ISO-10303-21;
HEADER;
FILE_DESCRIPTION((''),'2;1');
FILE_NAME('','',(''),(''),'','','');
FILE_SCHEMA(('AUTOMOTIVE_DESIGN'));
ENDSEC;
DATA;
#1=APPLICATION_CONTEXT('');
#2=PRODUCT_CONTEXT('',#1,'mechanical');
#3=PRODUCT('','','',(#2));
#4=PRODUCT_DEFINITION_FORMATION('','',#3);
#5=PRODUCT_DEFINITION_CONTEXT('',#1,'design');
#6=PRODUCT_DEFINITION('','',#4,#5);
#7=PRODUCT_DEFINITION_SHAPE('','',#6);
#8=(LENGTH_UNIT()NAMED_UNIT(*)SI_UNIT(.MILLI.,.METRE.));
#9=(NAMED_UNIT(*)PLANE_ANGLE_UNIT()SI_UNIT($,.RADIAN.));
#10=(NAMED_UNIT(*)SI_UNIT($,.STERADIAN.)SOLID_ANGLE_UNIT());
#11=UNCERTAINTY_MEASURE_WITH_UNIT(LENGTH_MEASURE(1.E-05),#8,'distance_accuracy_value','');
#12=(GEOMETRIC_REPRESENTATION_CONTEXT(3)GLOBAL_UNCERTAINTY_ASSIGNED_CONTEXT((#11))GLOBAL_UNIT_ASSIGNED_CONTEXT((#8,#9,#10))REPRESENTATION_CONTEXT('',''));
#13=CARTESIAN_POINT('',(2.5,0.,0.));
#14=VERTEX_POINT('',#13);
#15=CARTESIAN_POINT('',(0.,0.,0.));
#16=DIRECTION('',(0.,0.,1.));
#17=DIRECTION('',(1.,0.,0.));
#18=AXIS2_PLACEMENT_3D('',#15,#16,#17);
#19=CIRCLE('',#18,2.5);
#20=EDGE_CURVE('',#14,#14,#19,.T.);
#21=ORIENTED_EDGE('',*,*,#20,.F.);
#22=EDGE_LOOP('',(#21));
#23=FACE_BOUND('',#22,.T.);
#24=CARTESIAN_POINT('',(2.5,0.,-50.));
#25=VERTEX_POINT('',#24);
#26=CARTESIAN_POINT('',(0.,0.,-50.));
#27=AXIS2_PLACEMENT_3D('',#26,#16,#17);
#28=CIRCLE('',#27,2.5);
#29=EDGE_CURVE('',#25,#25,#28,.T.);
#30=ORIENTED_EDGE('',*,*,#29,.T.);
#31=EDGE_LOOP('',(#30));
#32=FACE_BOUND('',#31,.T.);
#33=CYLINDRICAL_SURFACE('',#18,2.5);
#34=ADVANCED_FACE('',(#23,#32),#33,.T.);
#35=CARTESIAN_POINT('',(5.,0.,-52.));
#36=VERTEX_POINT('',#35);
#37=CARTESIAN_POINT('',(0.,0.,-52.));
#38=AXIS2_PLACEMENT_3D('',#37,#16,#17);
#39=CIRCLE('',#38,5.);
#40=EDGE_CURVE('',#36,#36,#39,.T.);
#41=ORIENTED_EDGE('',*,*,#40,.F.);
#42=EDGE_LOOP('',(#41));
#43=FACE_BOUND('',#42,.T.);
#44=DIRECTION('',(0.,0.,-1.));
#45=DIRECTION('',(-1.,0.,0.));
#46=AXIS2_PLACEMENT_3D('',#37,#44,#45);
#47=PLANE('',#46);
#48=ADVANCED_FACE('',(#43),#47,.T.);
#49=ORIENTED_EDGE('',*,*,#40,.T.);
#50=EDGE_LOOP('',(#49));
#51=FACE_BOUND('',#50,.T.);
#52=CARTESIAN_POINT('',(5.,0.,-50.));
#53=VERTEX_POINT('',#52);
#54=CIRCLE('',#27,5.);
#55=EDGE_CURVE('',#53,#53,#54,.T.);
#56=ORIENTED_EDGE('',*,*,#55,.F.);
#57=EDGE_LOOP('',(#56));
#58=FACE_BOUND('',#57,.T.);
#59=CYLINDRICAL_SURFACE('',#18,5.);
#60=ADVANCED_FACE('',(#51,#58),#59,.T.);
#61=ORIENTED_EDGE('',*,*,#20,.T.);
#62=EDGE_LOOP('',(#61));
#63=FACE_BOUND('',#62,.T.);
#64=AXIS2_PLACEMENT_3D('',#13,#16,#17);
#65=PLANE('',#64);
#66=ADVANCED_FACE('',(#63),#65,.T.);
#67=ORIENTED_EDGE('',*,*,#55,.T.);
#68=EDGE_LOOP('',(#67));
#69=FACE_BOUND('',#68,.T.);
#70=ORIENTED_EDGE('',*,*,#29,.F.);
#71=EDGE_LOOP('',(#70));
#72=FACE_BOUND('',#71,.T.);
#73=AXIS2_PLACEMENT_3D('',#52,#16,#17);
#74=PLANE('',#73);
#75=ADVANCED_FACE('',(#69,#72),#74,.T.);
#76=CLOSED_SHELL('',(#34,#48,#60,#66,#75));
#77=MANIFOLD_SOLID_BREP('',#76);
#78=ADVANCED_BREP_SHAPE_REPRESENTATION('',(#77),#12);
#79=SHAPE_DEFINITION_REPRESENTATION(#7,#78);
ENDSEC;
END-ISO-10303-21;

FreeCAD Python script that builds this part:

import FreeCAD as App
import Part
import Sketcher

V = App.Vector
Q = App.Units.Quantity

doc = App.newDocument("Part")
body = doc.addObject("PartDesign::Body", "Body")

# Sketch on XZ plane
sketch1 = doc.addObject("Sketcher::SketchObject", "Sketch")
body.addObject(sketch1)
sketch1.AttachmentSupport = (doc.XZ_Plane, [""])
sketch1.MapMode = "FlatFace"
sketch1.addGeometry([
    Part.LineSegment(V(0, -52, 0), V(0, 0, 0)),  # 0
    Part.LineSegment(V(0, 0, 0), V(2.5, 0, 0)),  # 1
    Part.LineSegment(V(2.5, 0, 0), V(2.5, -50, 0)),  # 2
    Part.LineSegment(V(2.5, -50, 0), V(5, -50, 0)),  # 3
    Part.LineSegment(V(5, -50, 0), V(5, -52, 0)),  # 4
    Part.LineSegment(V(5, -52, 0), V(0, -52, 0)),  # 5
], False)
sketch1.addConstraint([
    Sketcher.Constraint("Coincident", 0, 2, 1, 1),
    Sketcher.Constraint("Coincident", 1, 2, 2, 1),
    Sketcher.Constraint("Coincident", 2, 2, 3, 1),
    Sketcher.Constraint("Coincident", 3, 2, 4, 1),
    Sketcher.Constraint("Coincident", 4, 2, 5, 1),
    Sketcher.Constraint("Coincident", 5, 2, 0, 1),
    Sketcher.Constraint("Vertical", 0),
    Sketcher.Constraint("Horizontal", 1),
    Sketcher.Constraint("Vertical", 2),
    Sketcher.Constraint("Horizontal", 3),
    Sketcher.Constraint("Vertical", 4),
    Sketcher.Constraint("Horizontal", 5),
    Sketcher.Constraint("Coincident", 0, 2, -1, 1),
    Sketcher.Constraint("Equal", 1, 3),
    Sketcher.Constraint("DistanceX", 5, 2, 5, 1, Q("5 mm")),
    Sketcher.Constraint("DistanceY", 0, 1, 0, 2, Q("52 mm")),
    Sketcher.Constraint("DistanceY", 2, 2, 2, 1, Q("50 mm")),
])
revolution = doc.addObject("PartDesign::Revolution", "Revolution")
body.addObject(revolution)
revolution.Profile = sketch1
revolution.ReferenceAxis = (sketch1, ["V_Axis"])
revolution.Angle = 360

doc.recompute()
